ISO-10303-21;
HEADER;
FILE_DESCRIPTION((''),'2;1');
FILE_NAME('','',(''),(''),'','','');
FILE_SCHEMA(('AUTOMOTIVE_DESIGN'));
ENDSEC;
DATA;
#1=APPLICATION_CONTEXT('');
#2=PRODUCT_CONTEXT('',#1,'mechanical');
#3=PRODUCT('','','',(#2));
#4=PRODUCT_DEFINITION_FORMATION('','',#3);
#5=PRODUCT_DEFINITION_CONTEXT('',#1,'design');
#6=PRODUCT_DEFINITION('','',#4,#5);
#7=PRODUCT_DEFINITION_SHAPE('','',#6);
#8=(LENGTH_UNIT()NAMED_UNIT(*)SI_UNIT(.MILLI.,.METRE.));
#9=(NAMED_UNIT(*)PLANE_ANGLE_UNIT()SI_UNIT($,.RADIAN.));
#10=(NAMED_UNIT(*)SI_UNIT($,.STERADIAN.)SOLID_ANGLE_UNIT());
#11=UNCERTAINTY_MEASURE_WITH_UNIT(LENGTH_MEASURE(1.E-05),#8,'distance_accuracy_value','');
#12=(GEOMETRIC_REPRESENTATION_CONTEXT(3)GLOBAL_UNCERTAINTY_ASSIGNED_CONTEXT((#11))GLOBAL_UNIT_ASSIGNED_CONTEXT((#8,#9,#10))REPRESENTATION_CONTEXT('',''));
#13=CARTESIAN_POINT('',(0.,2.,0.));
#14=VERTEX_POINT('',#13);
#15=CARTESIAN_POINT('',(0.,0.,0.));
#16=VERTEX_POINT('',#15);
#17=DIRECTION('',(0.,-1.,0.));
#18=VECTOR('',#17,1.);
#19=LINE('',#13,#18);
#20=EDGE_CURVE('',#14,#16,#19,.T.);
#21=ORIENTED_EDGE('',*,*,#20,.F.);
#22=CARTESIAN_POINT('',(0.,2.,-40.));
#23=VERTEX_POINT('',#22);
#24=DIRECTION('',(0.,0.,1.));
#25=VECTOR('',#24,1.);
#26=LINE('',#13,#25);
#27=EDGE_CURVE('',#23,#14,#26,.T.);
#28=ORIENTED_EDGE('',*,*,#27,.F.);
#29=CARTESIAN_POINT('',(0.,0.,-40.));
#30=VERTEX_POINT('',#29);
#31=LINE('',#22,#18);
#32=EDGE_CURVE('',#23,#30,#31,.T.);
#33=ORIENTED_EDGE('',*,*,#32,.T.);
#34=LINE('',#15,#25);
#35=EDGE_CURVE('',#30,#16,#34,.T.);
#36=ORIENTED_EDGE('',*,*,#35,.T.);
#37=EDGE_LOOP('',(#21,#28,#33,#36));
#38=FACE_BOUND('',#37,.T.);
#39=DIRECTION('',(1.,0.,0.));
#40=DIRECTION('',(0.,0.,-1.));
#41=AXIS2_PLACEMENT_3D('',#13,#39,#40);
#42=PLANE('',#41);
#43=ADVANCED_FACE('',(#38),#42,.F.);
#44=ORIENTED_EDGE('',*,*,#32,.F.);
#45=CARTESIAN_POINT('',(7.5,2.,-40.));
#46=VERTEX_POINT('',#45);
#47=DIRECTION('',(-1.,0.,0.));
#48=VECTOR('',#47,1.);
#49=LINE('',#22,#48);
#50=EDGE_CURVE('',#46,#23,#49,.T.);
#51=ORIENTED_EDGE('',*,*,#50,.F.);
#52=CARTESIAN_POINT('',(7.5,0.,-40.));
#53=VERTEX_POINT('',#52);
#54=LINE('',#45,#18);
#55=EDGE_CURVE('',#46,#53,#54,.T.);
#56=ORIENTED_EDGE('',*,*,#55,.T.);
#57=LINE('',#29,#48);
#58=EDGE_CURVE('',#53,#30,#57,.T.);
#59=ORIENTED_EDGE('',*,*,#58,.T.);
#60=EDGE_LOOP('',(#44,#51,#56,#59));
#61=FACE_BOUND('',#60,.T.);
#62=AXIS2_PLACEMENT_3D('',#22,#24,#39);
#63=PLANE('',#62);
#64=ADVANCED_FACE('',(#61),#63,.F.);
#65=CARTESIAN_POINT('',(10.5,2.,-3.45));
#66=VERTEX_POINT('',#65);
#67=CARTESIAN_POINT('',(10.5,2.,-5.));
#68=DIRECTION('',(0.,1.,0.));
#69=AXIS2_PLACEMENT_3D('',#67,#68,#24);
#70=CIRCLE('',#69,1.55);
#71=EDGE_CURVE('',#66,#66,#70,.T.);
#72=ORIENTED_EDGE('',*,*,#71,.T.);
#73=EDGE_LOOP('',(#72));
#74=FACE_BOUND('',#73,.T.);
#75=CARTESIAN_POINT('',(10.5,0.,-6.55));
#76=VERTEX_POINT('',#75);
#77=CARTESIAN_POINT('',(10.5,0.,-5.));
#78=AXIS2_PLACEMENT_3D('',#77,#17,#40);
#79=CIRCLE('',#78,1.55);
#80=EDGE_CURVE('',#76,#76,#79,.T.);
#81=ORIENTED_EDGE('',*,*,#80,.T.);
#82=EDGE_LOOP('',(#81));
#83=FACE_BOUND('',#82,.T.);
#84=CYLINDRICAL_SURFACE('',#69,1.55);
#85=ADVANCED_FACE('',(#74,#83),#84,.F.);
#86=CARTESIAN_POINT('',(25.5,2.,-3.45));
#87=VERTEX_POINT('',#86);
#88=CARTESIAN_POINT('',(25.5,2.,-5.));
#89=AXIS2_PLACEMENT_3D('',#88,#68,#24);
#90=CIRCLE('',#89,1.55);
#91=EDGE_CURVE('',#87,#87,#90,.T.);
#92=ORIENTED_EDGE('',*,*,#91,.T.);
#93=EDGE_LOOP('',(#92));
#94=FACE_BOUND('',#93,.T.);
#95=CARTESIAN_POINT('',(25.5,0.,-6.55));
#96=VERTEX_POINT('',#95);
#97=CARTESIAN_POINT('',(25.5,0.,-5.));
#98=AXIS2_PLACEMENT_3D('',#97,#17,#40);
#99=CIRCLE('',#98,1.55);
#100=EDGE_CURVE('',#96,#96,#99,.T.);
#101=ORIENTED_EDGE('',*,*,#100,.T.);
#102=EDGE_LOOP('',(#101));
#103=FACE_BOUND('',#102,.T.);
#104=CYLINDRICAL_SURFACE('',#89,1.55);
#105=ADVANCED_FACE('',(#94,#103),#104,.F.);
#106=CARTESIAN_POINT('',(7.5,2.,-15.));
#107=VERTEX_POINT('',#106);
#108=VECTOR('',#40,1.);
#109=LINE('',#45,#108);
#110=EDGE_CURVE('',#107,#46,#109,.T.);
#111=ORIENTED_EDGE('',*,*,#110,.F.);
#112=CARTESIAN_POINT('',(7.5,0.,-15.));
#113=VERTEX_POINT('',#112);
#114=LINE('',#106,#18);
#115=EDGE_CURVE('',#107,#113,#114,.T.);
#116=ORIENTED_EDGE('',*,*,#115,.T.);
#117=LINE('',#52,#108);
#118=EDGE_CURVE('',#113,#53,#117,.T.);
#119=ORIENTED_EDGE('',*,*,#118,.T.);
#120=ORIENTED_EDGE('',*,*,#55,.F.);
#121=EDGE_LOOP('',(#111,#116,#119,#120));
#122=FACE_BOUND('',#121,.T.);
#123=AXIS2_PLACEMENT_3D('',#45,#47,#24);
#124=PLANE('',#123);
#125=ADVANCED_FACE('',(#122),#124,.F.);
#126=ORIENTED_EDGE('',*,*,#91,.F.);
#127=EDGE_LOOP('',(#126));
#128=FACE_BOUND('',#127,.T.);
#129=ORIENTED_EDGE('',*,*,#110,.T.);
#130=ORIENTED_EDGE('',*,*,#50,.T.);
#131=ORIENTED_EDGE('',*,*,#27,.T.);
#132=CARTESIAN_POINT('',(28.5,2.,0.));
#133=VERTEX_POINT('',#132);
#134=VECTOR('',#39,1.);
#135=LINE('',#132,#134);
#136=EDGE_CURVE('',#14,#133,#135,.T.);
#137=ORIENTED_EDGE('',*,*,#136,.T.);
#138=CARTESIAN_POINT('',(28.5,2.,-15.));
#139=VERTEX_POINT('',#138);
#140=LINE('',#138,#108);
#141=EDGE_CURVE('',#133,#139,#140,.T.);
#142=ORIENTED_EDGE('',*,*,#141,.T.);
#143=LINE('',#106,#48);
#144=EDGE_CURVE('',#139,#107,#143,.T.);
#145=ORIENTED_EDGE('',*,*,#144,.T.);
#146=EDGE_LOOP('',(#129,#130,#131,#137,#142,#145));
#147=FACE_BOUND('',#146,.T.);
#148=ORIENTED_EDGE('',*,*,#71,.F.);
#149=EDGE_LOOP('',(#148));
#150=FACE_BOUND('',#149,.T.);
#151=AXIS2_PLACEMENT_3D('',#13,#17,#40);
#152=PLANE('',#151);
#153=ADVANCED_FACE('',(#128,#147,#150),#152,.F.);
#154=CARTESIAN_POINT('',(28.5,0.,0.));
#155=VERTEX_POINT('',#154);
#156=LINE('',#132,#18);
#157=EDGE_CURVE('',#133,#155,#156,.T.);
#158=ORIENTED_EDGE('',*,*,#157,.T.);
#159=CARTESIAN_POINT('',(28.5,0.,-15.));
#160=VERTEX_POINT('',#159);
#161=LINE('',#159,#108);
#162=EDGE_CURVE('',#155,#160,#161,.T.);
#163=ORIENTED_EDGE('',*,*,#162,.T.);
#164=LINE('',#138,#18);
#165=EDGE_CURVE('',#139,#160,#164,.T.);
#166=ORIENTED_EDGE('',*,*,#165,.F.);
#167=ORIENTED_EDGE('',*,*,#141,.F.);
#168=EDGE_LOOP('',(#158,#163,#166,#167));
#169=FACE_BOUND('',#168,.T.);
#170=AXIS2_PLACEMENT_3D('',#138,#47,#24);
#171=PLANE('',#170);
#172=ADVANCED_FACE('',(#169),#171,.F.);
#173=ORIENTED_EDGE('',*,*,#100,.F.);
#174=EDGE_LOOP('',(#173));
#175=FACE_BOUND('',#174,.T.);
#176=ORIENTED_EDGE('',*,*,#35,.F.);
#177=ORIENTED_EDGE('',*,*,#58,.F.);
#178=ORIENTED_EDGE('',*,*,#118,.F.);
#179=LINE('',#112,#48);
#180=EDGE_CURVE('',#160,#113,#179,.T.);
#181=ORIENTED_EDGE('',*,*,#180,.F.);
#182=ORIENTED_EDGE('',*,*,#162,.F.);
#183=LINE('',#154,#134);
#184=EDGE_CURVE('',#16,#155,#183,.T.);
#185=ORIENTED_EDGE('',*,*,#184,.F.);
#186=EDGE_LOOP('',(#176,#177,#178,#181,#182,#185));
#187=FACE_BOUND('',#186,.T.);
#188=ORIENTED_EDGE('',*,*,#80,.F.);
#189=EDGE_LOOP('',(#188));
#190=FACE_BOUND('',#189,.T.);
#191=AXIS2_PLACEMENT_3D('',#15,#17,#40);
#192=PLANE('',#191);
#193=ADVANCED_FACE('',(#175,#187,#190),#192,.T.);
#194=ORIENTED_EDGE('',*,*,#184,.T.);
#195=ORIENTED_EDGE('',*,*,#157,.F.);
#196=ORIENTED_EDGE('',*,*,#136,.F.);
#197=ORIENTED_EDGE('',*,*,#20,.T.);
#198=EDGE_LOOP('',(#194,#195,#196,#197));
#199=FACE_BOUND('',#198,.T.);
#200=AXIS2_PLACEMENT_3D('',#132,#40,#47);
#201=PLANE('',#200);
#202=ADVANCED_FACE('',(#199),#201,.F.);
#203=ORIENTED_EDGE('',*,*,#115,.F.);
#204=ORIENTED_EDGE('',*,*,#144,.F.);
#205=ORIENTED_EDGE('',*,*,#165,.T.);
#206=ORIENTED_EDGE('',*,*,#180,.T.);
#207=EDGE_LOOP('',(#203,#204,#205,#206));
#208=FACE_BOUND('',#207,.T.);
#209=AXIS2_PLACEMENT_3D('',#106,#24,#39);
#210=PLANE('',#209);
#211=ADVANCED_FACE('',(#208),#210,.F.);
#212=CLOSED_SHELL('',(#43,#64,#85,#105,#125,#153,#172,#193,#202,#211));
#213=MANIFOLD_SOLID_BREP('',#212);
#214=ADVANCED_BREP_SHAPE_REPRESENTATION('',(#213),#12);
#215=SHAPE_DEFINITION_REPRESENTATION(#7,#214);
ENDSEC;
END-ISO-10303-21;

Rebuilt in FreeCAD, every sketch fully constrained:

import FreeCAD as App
import Part
import Sketcher

V = App.Vector
Q = App.Units.Quantity

doc = App.newDocument("Part")
body = doc.addObject("PartDesign::Body", "Body")

# Sketch on XZ plane
sketch1 = body.newObject("Sketcher::SketchObject", "Sketch")
sketch1.AttachmentSupport = (doc.getObject("XZ_Plane"), [""])
sketch1.MapMode = "FlatFace"
sketch1.addGeometry([
    Part.LineSegment(V(0, -40, 0), V(0, 0, 0)),  # 0
    Part.LineSegment(V(0, 0, 0), V(28, 0, 0)),  # 1
    Part.LineSegment(V(28, 0, 0), V(28, -15, 0)),  # 2
    Part.LineSegment(V(28, -15, 0), V(8, -15, 0)),  # 3
    Part.LineSegment(V(8, -15, 0), V(8, -40, 0)),  # 4
    Part.LineSegment(V(8, -40, 0), V(0, -40, 0)),  # 5
], False)
sketch1.addConstraint([
    Sketcher.Constraint("Coincident", 0, 2, 1, 1),
    Sketcher.Constraint("Coincident", 1, 2, 2, 1),
    Sketcher.Constraint("Coincident", 2, 2, 3, 1),
    Sketcher.Constraint("Coincident", 3, 2, 4, 1),
    Sketcher.Constraint("Coincident", 4, 2, 5, 1),
    Sketcher.Constraint("Coincident", 5, 2, 0, 1),
    Sketcher.Constraint("Vertical", 0),
    Sketcher.Constraint("Horizontal", 1),
    Sketcher.Constraint("Vertical", 2),
    Sketcher.Constraint("Horizontal", 3),
    Sketcher.Constraint("Vertical", 4),
    Sketcher.Constraint("Horizontal", 5),
    Sketcher.Constraint("Coincident", 0, 2, -1, 1),
    Sketcher.Constraint("DistanceX", 3, 2, 3, 1, Q("21 mm")),
    Sketcher.Constraint("DistanceY", 0, 1, 0, 2, Q("40 mm")),
    Sketcher.Constraint("DistanceY", 2, 2, 2, 1, Q("15 mm")),
    Sketcher.Constraint("DistanceX", 1, 1, 1, 2, Q("28.5 mm")),
])
pad1 = body.newObject("PartDesign::Pad", "Pad")
pad1.Profile = sketch1
pad1.Length = 2
pad1.Reversed = True

# Sketch on XZ plane
sketch2 = body.newObject("Sketcher::SketchObject", "Sketch001")
sketch2.AttachmentSupport = (doc.getObject("XZ_Plane"), [""])
sketch2.MapMode = "FlatFace"
sketch2.AttachmentOffset = App.Placement(V(0, 0, -2), App.Rotation())
sketch2.addGeometry([
    Part.Circle(V(10.5, -5, 0), V(0, 0, 1), 1.6),
    Part.Circle(V(25.5, -5, 0), V(0, 0, 1), 1.6),
], False)
sketch2.addConstraint([
    Sketcher.Constraint("Equal", 0, 1),
    Sketcher.Constraint("Horizontal", 0, 3, 1, 3),
    Sketcher.Constraint("Diameter", 0, Q("3.1 mm")),
    Sketcher.Constraint("DistanceY", 0, 3, -1, 1, Q("5 mm")),
    Sketcher.Constraint("DistanceX", 0, 3, 1, 3, Q("15 mm")),
    Sketcher.Constraint("DistanceX", -1, 1, 0, 3, Q("10.5 mm")),
])
doc.recompute()
hole = body.newObject("PartDesign::Hole", "Hole")
hole.Profile = sketch2
hole.ThreadType = "None"
hole.Diameter = 3.1
hole.DepthType = "Dimension"
hole.Depth = 10
hole.DrillPoint = "Angled"
hole.DrillPointAngle = 118
hole.Reversed = True

doc.recompute()
